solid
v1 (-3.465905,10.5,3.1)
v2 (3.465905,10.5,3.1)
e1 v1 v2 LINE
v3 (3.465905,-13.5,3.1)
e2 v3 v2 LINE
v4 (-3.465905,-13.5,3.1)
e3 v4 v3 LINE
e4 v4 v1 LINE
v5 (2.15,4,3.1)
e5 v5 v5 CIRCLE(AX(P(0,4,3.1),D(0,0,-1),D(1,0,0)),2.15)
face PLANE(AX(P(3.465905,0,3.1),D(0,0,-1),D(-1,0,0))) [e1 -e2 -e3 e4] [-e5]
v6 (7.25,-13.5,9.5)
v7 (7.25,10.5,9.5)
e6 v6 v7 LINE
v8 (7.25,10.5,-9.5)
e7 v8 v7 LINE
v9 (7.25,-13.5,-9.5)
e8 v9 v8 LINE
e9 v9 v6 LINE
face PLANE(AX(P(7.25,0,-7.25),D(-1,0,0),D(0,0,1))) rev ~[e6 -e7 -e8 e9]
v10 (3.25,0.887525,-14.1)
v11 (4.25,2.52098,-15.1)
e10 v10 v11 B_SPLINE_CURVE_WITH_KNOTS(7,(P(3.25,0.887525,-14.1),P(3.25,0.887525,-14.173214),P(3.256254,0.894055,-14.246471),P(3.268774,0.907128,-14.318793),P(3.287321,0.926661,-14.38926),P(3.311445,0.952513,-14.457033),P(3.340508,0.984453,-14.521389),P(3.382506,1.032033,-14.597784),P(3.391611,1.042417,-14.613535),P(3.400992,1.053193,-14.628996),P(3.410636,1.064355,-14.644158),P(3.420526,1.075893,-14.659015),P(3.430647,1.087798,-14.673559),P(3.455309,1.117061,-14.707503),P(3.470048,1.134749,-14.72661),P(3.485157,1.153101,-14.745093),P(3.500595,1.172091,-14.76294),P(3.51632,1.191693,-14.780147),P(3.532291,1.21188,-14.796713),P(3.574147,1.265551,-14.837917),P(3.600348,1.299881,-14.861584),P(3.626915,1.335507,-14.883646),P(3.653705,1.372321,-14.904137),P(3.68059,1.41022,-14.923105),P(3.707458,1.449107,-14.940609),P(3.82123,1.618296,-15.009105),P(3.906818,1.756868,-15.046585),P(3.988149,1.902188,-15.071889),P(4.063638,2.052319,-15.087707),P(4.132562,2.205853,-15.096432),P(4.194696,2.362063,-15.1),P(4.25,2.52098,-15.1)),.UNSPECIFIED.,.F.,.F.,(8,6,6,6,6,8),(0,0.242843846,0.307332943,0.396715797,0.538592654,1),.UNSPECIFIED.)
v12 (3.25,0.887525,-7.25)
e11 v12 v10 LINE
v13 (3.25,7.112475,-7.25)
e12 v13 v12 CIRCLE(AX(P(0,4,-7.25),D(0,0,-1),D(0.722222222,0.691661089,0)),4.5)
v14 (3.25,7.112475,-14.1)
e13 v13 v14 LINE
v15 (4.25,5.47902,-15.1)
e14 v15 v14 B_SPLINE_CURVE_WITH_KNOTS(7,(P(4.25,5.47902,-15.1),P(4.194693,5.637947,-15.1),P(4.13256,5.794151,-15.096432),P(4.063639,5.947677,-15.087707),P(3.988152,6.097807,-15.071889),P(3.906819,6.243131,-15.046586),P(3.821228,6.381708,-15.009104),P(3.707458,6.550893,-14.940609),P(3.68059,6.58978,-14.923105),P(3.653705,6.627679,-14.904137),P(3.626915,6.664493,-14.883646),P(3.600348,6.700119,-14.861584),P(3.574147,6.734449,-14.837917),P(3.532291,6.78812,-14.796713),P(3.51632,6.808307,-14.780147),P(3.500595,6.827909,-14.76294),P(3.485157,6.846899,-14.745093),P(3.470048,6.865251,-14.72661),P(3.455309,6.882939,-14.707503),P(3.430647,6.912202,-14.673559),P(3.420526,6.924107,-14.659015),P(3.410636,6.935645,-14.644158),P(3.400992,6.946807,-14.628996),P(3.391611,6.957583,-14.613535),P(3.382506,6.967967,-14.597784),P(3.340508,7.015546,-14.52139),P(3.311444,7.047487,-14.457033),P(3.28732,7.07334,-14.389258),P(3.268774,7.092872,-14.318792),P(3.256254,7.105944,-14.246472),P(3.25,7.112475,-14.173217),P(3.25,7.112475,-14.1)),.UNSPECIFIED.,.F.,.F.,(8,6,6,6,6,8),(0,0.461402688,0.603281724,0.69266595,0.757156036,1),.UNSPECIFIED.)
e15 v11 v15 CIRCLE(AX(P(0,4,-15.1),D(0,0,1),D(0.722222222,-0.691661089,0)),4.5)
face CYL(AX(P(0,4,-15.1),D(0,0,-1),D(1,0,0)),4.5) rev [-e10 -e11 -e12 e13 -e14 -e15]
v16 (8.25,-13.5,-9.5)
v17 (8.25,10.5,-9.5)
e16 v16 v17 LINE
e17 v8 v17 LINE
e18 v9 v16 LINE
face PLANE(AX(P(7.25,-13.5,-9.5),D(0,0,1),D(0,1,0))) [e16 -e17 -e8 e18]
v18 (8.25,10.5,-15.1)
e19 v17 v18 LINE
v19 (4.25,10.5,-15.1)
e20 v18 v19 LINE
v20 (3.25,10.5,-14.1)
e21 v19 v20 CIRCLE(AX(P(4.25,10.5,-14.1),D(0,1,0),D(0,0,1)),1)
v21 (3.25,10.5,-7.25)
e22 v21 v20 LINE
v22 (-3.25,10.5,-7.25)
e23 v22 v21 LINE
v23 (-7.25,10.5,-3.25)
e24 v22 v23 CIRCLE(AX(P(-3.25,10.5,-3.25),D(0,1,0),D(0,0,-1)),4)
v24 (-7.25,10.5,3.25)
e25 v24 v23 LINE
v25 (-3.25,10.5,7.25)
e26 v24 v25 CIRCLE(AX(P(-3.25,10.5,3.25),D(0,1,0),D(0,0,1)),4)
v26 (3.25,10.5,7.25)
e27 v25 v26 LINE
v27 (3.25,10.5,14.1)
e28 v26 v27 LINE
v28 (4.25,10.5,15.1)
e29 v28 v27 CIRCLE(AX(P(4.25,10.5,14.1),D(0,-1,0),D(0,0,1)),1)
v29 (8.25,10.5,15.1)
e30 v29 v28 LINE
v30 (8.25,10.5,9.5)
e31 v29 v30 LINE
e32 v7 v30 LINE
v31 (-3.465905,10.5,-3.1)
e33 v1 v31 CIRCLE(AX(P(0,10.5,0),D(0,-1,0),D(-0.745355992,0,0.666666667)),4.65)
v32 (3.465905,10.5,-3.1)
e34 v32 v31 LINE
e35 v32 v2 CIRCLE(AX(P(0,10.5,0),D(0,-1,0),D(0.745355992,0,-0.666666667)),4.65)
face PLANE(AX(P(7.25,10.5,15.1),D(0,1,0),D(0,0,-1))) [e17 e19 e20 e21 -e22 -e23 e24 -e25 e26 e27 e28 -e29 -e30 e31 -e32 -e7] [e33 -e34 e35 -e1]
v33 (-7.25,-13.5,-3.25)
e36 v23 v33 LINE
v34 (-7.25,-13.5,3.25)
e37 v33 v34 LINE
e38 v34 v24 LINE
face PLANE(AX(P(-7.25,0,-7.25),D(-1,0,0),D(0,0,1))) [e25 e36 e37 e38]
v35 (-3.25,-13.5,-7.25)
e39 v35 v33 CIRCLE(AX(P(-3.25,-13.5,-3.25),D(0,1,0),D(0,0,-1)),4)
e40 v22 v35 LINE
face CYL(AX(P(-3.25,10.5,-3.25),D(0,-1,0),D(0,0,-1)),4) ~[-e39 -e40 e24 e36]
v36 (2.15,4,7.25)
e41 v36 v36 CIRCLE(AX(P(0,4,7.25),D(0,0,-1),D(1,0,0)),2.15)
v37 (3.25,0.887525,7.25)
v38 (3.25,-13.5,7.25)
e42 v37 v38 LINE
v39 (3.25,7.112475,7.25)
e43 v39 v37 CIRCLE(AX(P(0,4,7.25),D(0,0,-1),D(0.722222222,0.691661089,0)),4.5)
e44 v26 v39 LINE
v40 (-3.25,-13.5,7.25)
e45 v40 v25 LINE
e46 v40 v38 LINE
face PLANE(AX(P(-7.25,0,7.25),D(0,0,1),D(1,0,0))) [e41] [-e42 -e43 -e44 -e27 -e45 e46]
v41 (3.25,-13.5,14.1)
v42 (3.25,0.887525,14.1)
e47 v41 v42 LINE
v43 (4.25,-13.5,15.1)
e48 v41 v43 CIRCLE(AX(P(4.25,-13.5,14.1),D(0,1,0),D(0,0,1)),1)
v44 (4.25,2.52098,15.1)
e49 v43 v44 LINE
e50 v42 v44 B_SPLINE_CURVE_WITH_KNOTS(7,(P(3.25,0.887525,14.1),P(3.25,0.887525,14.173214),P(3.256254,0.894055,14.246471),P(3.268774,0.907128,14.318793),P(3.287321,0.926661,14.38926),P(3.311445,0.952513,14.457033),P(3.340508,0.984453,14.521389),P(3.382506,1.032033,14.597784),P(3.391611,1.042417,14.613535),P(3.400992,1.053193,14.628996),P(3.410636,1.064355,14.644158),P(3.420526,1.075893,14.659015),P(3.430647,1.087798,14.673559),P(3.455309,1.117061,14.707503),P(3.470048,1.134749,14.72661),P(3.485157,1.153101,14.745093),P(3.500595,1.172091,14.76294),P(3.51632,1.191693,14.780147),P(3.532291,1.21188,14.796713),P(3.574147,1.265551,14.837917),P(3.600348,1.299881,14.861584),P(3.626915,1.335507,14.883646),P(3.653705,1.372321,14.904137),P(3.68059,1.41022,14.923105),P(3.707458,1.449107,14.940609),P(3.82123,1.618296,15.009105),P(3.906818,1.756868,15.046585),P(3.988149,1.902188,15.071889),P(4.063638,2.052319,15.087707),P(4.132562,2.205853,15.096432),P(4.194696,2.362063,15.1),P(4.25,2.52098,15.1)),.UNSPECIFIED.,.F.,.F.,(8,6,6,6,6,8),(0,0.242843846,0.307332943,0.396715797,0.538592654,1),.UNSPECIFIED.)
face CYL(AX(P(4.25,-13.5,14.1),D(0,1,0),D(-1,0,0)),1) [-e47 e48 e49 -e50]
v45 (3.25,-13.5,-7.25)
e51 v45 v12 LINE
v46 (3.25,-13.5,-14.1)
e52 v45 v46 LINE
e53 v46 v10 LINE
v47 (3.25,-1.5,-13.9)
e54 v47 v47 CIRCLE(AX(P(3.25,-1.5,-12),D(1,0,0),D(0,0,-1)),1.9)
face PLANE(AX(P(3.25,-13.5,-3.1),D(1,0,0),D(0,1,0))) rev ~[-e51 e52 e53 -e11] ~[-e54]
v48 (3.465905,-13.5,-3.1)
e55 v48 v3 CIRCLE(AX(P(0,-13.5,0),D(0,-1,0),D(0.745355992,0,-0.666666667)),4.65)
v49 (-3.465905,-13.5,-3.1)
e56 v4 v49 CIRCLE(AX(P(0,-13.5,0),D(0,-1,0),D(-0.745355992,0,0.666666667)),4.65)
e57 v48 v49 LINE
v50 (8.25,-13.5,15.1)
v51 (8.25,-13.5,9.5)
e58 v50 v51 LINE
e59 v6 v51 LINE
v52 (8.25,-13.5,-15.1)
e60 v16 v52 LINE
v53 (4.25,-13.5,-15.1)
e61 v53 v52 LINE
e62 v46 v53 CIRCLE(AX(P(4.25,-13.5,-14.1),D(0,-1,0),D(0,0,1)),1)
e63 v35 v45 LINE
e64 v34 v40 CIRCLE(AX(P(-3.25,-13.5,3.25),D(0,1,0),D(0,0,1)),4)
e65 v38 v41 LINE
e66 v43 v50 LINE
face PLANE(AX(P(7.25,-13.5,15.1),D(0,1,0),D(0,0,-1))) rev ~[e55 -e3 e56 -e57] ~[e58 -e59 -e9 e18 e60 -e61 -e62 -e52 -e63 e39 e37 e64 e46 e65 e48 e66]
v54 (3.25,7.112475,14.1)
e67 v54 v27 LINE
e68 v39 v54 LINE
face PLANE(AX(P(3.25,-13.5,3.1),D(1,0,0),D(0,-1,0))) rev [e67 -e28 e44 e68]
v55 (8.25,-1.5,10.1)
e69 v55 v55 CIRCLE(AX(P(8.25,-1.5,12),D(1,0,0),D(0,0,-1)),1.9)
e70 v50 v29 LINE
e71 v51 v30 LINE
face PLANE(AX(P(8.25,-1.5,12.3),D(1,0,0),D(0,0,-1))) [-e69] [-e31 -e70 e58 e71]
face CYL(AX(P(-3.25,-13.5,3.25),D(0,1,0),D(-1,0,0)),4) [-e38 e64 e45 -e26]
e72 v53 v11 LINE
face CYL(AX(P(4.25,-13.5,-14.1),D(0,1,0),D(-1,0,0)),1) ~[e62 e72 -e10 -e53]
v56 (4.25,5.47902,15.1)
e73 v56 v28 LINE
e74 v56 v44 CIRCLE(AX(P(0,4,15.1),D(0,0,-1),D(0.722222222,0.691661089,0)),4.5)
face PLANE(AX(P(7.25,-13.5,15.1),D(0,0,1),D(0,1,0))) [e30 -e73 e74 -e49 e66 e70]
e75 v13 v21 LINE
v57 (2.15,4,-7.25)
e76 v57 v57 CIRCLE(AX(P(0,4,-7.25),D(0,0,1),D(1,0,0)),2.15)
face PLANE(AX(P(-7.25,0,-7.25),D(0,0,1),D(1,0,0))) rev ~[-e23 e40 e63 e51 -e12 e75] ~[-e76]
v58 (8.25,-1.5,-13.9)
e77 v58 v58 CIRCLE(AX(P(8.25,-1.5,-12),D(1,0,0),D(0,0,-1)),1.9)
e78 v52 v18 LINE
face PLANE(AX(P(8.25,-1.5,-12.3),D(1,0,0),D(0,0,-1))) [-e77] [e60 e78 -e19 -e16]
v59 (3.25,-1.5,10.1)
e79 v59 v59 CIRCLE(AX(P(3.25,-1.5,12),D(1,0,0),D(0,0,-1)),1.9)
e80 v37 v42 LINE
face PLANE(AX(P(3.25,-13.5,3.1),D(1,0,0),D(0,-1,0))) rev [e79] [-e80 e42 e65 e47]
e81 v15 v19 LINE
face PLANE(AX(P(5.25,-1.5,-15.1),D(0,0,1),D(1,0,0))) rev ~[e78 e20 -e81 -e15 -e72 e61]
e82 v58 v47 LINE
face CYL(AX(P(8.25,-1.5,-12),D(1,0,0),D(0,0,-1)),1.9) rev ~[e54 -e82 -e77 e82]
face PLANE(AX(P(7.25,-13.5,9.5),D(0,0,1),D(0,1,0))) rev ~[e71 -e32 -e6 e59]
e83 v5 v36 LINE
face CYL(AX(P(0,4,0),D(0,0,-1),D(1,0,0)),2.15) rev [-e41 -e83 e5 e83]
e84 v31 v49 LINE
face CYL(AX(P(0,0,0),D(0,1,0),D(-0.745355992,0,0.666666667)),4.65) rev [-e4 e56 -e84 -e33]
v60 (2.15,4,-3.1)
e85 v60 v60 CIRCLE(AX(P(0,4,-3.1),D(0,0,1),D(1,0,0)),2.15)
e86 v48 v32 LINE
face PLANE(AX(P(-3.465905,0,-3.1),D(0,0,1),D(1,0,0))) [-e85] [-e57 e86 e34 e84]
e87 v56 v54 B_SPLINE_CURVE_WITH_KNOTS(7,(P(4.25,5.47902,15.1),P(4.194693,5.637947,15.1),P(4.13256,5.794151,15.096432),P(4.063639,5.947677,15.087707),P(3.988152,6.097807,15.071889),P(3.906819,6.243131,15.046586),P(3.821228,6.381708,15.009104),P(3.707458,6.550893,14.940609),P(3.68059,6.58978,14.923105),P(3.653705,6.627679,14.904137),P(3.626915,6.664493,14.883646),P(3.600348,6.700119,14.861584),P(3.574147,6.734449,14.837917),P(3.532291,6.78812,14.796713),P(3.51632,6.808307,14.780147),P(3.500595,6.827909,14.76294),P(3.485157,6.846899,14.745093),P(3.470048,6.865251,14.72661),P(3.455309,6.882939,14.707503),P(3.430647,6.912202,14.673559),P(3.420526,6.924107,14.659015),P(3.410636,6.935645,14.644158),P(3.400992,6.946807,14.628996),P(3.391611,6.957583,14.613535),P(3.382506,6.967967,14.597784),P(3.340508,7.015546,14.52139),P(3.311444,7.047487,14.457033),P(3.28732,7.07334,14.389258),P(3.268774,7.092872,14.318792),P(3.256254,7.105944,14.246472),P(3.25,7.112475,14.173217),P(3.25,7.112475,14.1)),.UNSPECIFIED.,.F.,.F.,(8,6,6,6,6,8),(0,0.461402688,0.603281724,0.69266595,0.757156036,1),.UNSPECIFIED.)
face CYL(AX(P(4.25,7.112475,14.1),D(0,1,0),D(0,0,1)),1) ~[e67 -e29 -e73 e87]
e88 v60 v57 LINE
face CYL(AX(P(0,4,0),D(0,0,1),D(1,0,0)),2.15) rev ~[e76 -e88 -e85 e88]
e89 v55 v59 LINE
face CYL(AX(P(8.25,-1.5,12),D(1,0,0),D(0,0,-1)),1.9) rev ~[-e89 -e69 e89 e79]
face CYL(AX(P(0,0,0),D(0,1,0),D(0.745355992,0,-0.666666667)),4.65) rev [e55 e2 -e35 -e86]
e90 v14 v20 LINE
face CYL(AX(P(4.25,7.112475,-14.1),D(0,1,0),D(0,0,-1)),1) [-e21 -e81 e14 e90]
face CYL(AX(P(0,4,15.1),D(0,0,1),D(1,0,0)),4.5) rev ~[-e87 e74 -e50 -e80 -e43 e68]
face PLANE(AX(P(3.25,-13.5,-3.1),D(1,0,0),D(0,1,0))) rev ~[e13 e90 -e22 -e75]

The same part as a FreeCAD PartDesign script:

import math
import FreeCAD as App
import Part
import Sketcher

V = App.Vector
Q = App.Units.Quantity


def edges_at(feature, points):
    """Names of the edges that pass closest to the given points."""
    edges = feature.Shape.Edges
    near = lambda p: min(range(len(edges)), key=lambda i: edges[i].distToShape(Part.Vertex(*p))[0])
    return sorted({f"Edge{near(p) + 1}" for p in points})


def add_polygon(sketch, points):
    """Adds a closed chain of lines whose ends are joined by coincident constraints."""
    first, n = sketch.GeometryCount, len(points)
    for a, b in zip(points, points[1:] + points[:1]):
        sketch.addGeometry(Part.LineSegment(App.Vector(*a, 0), App.Vector(*b, 0)), False)
    for i in range(n):
        sketch.addConstraint(Sketcher.Constraint("Coincident", first + i, 2, first + (i + 1) % n, 1))

doc = App.newDocument("Part")
params = doc.addObject("Spreadsheet::Sheet", "Params")
for row, (alias, value) in enumerate([
    ("sketch1_radius", "4.65 mm"),
    ("sketch1_width", "14.5 mm"),
    ("pad1_length", "10.5 mm"),
    ("sketch2_diameter", "4.3 mm"),
    ("sketch3_radius", "4.65 mm"),
    ("sketch3_width", "14.5 mm"),
    ("pad2_length", "13.5 mm"),
    ("sketch4_width", "4 mm"),
    ("sketch4_height", "24 mm"),
    ("pad3_length", "12 mm"),
    ("sketch5_width", "24 mm"),
    ("sketch5_height", "5.6 mm"),
    ("pad4_length", "1 mm"),
    ("sketch6_diameter", "9 mm"),
    ("pocket2_length", "7.85 mm"),
    ("sketch7_diameter", "3.8 mm"),
    ("fillet_radius", "4 mm"),
    ("fillet2_radius", "1 mm"),
], start=1):
    params.set(f"A{row}", alias)
    params.set(f"B{row}", "=" + value)
    params.setAlias(f"B{row}", alias)

body = doc.addObject("PartDesign::Body", "Body")

# Sketch on XZ plane
sketch1 = body.newObject("Sketcher::SketchObject", "Sketch")
sketch1.AttachmentSupport = (doc.getObject("XZ_Plane"), [""])
sketch1.MapMode = "FlatFace"
add_polygon(sketch1, [(-7.2, -7.2), (-7.2, 7.2), (7.2, 7.2), (7.2, -7.2)])  # lines 0-3
sketch1.addGeometry(Part.ArcOfCircle(Part.Circle(V(0, 0, 0), V(0, 0, 1), 4.7), math.radians(-42), math.radians(42)), False)  # 4
sketch1.addGeometry(Part.LineSegment(V(3.5, 3.1, 0), V(-3.5, 3.1, 0)), False)  # 5
sketch1.addGeometry(Part.ArcOfCircle(Part.Circle(V(0, 0, 0), V(0, 0, 1), 4.7), math.radians(138), math.radians(222)), False)  # 6
sketch1.addGeometry(Part.LineSegment(V(-3.5, -3.1, 0), V(3.5, -3.1, 0)), False)  # 7
sketch1.addConstraint(Sketcher.Constraint("Coincident", 4, 2, 5, 1))
sketch1.addConstraint(Sketcher.Constraint("Coincident", 5, 2, 6, 1))
sketch1.addConstraint(Sketcher.Constraint("Coincident", 6, 2, 7, 1))
sketch1.addConstraint(Sketcher.Constraint("Coincident", 7, 2, 4, 1))
sketch1.addConstraint(Sketcher.Constraint("Vertical", 0))
sketch1.addConstraint(Sketcher.Constraint("Horizontal", 1))
sketch1.addConstraint(Sketcher.Constraint("Vertical", 2))
sketch1.addConstraint(Sketcher.Constraint("Horizontal", 3))
sketch1.addConstraint(Sketcher.Constraint("Horizontal", 5))
sketch1.addConstraint(Sketcher.Constraint("Horizontal", 7))
sketch1.addConstraint(Sketcher.Constraint("Coincident", 4, 3, -1, 1))
sketch1.addConstraint(Sketcher.Constraint("Coincident", 6, 3, -1, 1))
sketch1.addConstraint(Sketcher.Constraint("Equal", 4, 6))
sketch1.addConstraint(Sketcher.Constraint("Symmetric", 0, 2, 2, 2, -1, 1))
sketch1.addConstraint(Sketcher.Constraint("Vertical", 5, 2, 6, 2))
sketch1.addConstraint(Sketcher.Constraint("Equal", 3, 0))
sketch1.addConstraint(Sketcher.Constraint("Radius", 4, Q("4.65 mm")))
sketch1.addConstraint(Sketcher.Constraint("DistanceX", 1, 1, 1, 2, Q("14.5 mm")))
sketch1.addConstraint(Sketcher.Constraint("DistanceY", -1, 1, 4, 2, Q("3.1 mm")))
sketch1.setExpression("Constraints[20]", "Params.sketch1_radius")
sketch1.setExpression("Constraints[21]", "Params.sketch1_width")
pad1 = body.newObject("PartDesign::Pad", "Pad")
pad1.Profile = sketch1
pad1.setExpression("Length", "Params.pad1_length")
pad1.Reversed = True

# Sketch on XY plane
sketch2 = body.newObject("Sketcher::SketchObject", "Sketch001")
sketch2.AttachmentSupport = (doc.getObject("XY_Plane"), [""])
sketch2.MapMode = "FlatFace"
sketch2.addGeometry(Part.Circle(V(0, 4, 0), V(0, 0, 1), 2.1), False)
sketch2.addConstraint(Sketcher.Constraint("PointOnObject", 0, 3, -2))
sketch2.addConstraint(Sketcher.Constraint("Diameter", 0, Q("4.3 mm")))
sketch2.addConstraint(Sketcher.Constraint("DistanceY", -1, 1, 0, 3, Q("4 mm")))
sketch2.setExpression("Constraints[1]", "Params.sketch2_diameter")
pocket1 = body.newObject("PartDesign::Pocket", "Pocket")
pocket1.Profile = sketch2
pocket1.Type = "ThroughAll"
pocket1.Midplane = True

# Sketch on XZ plane
sketch3 = body.newObject("Sketcher::SketchObject", "Sketch002")
sketch3.AttachmentSupport = (doc.getObject("XZ_Plane"), [""])
sketch3.MapMode = "FlatFace"
add_polygon(sketch3, [(-7.2, 7.2), (-7.2, -7.2), (7.2, -7.2), (7.2, 7.2)])  # lines 0-3
sketch3.addGeometry(Part.LineSegment(V(3.5, -3.1, 0), V(-3.5, -3.1, 0)), False)  # 4
sketch3.addGeometry(Part.ArcOfCircle(Part.Circle(V(0, 0, 0), V(0, 0, 1), 4.7), math.radians(138), math.radians(222)), False)  # 5
sketch3.addGeometry(Part.LineSegment(V(-3.5, 3.1, 0), V(3.5, 3.1, 0)), False)  # 6
sketch3.addGeometry(Part.ArcOfCircle(Part.Circle(V(0, 0, 0), V(0, 0, 1), 4.7), math.radians(-42), math.radians(42)), False)  # 7
sketch3.addConstraint(Sketcher.Constraint("Coincident", 4, 2, 5, 2))
sketch3.addConstraint(Sketcher.Constraint("Coincident", 5, 1, 6, 1))
sketch3.addConstraint(Sketcher.Constraint("Coincident", 6, 2, 7, 2))
sketch3.addConstraint(Sketcher.Constraint("Coincident", 7, 1, 4, 1))
sketch3.addConstraint(Sketcher.Constraint("Vertical", 0))
sketch3.addConstraint(Sketcher.Constraint("Horizontal", 1))
sketch3.addConstraint(Sketcher.Constraint("Vertical", 2))
sketch3.addConstraint(Sketcher.Constraint("Horizontal", 3))
sketch3.addConstraint(Sketcher.Constraint("Horizontal", 4))
sketch3.addConstraint(Sketcher.Constraint("Horizontal", 6))
sketch3.addConstraint(Sketcher.Constraint("Coincident", 5, 3, -1, 1))
sketch3.addConstraint(Sketcher.Constraint("Coincident", 7, 3, -1, 1))
sketch3.addConstraint(Sketcher.Constraint("Equal", 5, 7))
sketch3.addConstraint(Sketcher.Constraint("Symmetric", 0, 2, 2, 2, -1, 1))
sketch3.addConstraint(Sketcher.Constraint("Vertical", 4, 2, 5, 1))
sketch3.addConstraint(Sketcher.Constraint("Equal", 3, 0))
sketch3.addConstraint(Sketcher.Constraint("Radius", 5, Q("4.65 mm")))
sketch3.addConstraint(Sketcher.Constraint("DistanceX", 1, 1, 1, 2, Q("14.5 mm")))
sketch3.addConstraint(Sketcher.Constraint("DistanceY", 4, 2, -1, 1, Q("3.1 mm")))
sketch3.setExpression("Constraints[20]", "Params.sketch3_radius")
sketch3.setExpression("Constraints[21]", "Params.sketch3_width")
pad2 = body.newObject("PartDesign::Pad", "Pad001")
pad2.Profile = sketch3
pad2.setExpression("Length", "Params.pad2_length")

# Sketch on XY plane
sketch4 = body.newObject("Sketcher::SketchObject", "Sketch003")
sketch4.AttachmentSupport = (doc.getObject("XY_Plane"), [""])
sketch4.MapMode = "FlatFace"
sketch4.AttachmentOffset = App.Placement(V(0, 0, -3.1), App.Rotation())
add_polygon(sketch4, [(3.2, 10.5), (3.2, -13.5), (7.2, -13.5), (7.2, 10.5)])  # lines 0-3
sketch4.addConstraint(Sketcher.Constraint("Vertical", 0))
sketch4.addConstraint(Sketcher.Constraint("Horizontal", 1))
sketch4.addConstraint(Sketcher.Constraint("Vertical", 2))
sketch4.addConstraint(Sketcher.Constraint("Horizontal", 3))
sketch4.addConstraint(Sketcher.Constraint("DistanceX", 1, 1, 1, 2, Q("4 mm")))
sketch4.addConstraint(Sketcher.Constraint("DistanceY", 0, 2, 0, 1, Q("24 mm")))
sketch4.addConstraint(Sketcher.Constraint("DistanceY", 0, 2, -1, 1, Q("13.5 mm")))
sketch4.addConstraint(Sketcher.Constraint("DistanceX", -1, 1, 0, 2, Q("3.25 mm")))
sketch4.setExpression("Constraints[8]", "Params.sketch4_width")
sketch4.setExpression("Constraints[9]", "Params.sketch4_height")
pad3 = body.newObject("PartDesign::Pad", "Pad002")
pad3.Profile = sketch4
pad3.setExpression("Length", "Params.pad3_length")
pad3.Reversed = True
doc.recompute()

mirrored = body.newObject("PartDesign::Mirrored", "Mirrored")
mirrored.Originals = [pad3]
mirrored.MirrorPlane = (doc.getObject("XY_Plane"), [""])
body.Tip = mirrored

# Sketch on YZ plane
sketch5 = body.newObject("Sketcher::SketchObject", "Sketch004")
sketch5.AttachmentSupport = (doc.getObject("YZ_Plane"), [""])
sketch5.MapMode = "FlatFace"
sketch5.AttachmentOffset = App.Placement(V(0, 0, 7.25), App.Rotation())
add_polygon(sketch5, [(10, 15), (-14, 15), (-14, 10), (10, 10)])  # lines 0-3
add_polygon(sketch5, [(10, -10), (-14, -10), (-14, -15), (10, -15)])  # lines 4-7
sketch5.addConstraint(Sketcher.Constraint("Horizontal", 0))
sketch5.addConstraint(Sketcher.Constraint("Vertical", 1))
sketch5.addConstraint(Sketcher.Constraint("Horizontal", 2))
sketch5.addConstraint(Sketcher.Constraint("Vertical", 3))
sketch5.addConstraint(Sketcher.Constraint("Horizontal", 4))
sketch5.addConstraint(Sketcher.Constraint("Vertical", 5))
sketch5.addConstraint(Sketcher.Constraint("Horizontal", 6))
sketch5.addConstraint(Sketcher.Constraint("Vertical", 7))
sketch5.addConstraint(Sketcher.Constraint("Symmetric", 1, 2, 4, 2, -1))
sketch5.addConstraint(Sketcher.Constraint("Symmetric", 3, 2, 6, 2, -1))
sketch5.addConstraint(Sketcher.Constraint("DistanceX", 0, 2, 0, 1, Q("24 mm")))
sketch5.addConstraint(Sketcher.Constraint("DistanceY", 1, 2, 1, 1, Q("5.6 mm")))
sketch5.addConstraint(Sketcher.Constraint("DistanceY", 4, 2, 1, 2, Q("19 mm")))
sketch5.addConstraint(Sketcher.Constraint("DistanceX", 0, 2, -1, 1, Q("13.5 mm")))
sketch5.setExpression("Constraints[18]", "Params.sketch5_width")
sketch5.setExpression("Constraints[19]", "Params.sketch5_height")
pad4 = body.newObject("PartDesign::Pad", "Pad003")
pad4.Profile = sketch5
pad4.setExpression("Length", "Params.pad4_length")

# Sketch on XY plane
sketch6 = body.newObject("Sketcher::SketchObject", "Sketch005")
sketch6.AttachmentSupport = (doc.getObject("XY_Plane"), [""])
sketch6.MapMode = "FlatFace"
sketch6.AttachmentOffset = App.Placement(V(0, 0, 15.1), App.Rotation())
sketch6.addGeometry(Part.Circle(V(0, 4, 0), V(0, 0, 1), 4.5), False)
sketch6.addConstraint(Sketcher.Constraint("PointOnObject", 0, 3, -2))
sketch6.addConstraint(Sketcher.Constraint("Diameter", 0, Q("9 mm")))
sketch6.addConstraint(Sketcher.Constraint("DistanceY", -1, 1, 0, 3, Q("4 mm")))
sketch6.setExpression("Constraints[1]", "Params.sketch6_diameter")
pocket2 = body.newObject("PartDesign::Pocket", "Pocket001")
pocket2.Profile = sketch6
pocket2.setExpression("Length", "Params.pocket2_length")
doc.recompute()

mirrored2 = body.newObject("PartDesign::Mirrored", "Mirrored001")
mirrored2.Originals = [pocket2]
mirrored2.MirrorPlane = (doc.getObject("XY_Plane"), [""])
body.Tip = mirrored2

# Sketch on YZ plane
sketch7 = body.newObject("Sketcher::SketchObject", "Sketch006")
sketch7.AttachmentSupport = (doc.getObject("YZ_Plane"), [""])
sketch7.MapMode = "FlatFace"
sketch7.AttachmentOffset = App.Placement(V(0, 0, 8.25), App.Rotation())
sketch7.addGeometry(Part.Circle(V(-1.5, -12, 0), V(0, 0, 1), 1.9), False)
sketch7.addGeometry(Part.Circle(V(-1.5, 12, 0), V(0, 0, 1), 1.9), False)
sketch7.addConstraint(Sketcher.Constraint("Equal", 0, 1))
sketch7.addConstraint(Sketcher.Constraint("Symmetric", 0, 3, 1, 3, -1))
sketch7.addConstraint(Sketcher.Constraint("Diameter", 0, Q("3.8 mm")))
sketch7.addConstraint(Sketcher.Constraint("DistanceY", 0, 3, -1, 1, Q("12 mm")))
sketch7.addConstraint(Sketcher.Constraint("DistanceX", 0, 3, -1, 1, Q("1.5 mm")))
sketch7.setExpression("Constraints[2]", "Params.sketch7_diameter")
pocket3 = body.newObject("PartDesign::Pocket", "Pocket002")
pocket3.Profile = sketch7
pocket3.Type = "ThroughAll"
pocket3.Midplane = True
doc.recompute()

fillet = body.newObject("PartDesign::Fillet", "Fillet")
fillet.Base = (pocket3, edges_at(pocket3, [(-7.25, -1.5, 7.25), (-7.25, -1.5, -7.25)]))
fillet.setExpression("Radius", "Params.fillet_radius")
doc.recompute()

fillet2 = body.newObject("PartDesign::Fillet", "Fillet001")
fillet2.Base = (fillet, edges_at(fillet, [
    (3.25, -6.306, 15.1),
    (3.25, -6.306, -15.1),
    (3.25, 8.806, -15.1),
    (3.25, 8.806, 15.1),
]))
fillet2.setExpression("Radius", "Params.fillet2_radius")

doc.recompute()
